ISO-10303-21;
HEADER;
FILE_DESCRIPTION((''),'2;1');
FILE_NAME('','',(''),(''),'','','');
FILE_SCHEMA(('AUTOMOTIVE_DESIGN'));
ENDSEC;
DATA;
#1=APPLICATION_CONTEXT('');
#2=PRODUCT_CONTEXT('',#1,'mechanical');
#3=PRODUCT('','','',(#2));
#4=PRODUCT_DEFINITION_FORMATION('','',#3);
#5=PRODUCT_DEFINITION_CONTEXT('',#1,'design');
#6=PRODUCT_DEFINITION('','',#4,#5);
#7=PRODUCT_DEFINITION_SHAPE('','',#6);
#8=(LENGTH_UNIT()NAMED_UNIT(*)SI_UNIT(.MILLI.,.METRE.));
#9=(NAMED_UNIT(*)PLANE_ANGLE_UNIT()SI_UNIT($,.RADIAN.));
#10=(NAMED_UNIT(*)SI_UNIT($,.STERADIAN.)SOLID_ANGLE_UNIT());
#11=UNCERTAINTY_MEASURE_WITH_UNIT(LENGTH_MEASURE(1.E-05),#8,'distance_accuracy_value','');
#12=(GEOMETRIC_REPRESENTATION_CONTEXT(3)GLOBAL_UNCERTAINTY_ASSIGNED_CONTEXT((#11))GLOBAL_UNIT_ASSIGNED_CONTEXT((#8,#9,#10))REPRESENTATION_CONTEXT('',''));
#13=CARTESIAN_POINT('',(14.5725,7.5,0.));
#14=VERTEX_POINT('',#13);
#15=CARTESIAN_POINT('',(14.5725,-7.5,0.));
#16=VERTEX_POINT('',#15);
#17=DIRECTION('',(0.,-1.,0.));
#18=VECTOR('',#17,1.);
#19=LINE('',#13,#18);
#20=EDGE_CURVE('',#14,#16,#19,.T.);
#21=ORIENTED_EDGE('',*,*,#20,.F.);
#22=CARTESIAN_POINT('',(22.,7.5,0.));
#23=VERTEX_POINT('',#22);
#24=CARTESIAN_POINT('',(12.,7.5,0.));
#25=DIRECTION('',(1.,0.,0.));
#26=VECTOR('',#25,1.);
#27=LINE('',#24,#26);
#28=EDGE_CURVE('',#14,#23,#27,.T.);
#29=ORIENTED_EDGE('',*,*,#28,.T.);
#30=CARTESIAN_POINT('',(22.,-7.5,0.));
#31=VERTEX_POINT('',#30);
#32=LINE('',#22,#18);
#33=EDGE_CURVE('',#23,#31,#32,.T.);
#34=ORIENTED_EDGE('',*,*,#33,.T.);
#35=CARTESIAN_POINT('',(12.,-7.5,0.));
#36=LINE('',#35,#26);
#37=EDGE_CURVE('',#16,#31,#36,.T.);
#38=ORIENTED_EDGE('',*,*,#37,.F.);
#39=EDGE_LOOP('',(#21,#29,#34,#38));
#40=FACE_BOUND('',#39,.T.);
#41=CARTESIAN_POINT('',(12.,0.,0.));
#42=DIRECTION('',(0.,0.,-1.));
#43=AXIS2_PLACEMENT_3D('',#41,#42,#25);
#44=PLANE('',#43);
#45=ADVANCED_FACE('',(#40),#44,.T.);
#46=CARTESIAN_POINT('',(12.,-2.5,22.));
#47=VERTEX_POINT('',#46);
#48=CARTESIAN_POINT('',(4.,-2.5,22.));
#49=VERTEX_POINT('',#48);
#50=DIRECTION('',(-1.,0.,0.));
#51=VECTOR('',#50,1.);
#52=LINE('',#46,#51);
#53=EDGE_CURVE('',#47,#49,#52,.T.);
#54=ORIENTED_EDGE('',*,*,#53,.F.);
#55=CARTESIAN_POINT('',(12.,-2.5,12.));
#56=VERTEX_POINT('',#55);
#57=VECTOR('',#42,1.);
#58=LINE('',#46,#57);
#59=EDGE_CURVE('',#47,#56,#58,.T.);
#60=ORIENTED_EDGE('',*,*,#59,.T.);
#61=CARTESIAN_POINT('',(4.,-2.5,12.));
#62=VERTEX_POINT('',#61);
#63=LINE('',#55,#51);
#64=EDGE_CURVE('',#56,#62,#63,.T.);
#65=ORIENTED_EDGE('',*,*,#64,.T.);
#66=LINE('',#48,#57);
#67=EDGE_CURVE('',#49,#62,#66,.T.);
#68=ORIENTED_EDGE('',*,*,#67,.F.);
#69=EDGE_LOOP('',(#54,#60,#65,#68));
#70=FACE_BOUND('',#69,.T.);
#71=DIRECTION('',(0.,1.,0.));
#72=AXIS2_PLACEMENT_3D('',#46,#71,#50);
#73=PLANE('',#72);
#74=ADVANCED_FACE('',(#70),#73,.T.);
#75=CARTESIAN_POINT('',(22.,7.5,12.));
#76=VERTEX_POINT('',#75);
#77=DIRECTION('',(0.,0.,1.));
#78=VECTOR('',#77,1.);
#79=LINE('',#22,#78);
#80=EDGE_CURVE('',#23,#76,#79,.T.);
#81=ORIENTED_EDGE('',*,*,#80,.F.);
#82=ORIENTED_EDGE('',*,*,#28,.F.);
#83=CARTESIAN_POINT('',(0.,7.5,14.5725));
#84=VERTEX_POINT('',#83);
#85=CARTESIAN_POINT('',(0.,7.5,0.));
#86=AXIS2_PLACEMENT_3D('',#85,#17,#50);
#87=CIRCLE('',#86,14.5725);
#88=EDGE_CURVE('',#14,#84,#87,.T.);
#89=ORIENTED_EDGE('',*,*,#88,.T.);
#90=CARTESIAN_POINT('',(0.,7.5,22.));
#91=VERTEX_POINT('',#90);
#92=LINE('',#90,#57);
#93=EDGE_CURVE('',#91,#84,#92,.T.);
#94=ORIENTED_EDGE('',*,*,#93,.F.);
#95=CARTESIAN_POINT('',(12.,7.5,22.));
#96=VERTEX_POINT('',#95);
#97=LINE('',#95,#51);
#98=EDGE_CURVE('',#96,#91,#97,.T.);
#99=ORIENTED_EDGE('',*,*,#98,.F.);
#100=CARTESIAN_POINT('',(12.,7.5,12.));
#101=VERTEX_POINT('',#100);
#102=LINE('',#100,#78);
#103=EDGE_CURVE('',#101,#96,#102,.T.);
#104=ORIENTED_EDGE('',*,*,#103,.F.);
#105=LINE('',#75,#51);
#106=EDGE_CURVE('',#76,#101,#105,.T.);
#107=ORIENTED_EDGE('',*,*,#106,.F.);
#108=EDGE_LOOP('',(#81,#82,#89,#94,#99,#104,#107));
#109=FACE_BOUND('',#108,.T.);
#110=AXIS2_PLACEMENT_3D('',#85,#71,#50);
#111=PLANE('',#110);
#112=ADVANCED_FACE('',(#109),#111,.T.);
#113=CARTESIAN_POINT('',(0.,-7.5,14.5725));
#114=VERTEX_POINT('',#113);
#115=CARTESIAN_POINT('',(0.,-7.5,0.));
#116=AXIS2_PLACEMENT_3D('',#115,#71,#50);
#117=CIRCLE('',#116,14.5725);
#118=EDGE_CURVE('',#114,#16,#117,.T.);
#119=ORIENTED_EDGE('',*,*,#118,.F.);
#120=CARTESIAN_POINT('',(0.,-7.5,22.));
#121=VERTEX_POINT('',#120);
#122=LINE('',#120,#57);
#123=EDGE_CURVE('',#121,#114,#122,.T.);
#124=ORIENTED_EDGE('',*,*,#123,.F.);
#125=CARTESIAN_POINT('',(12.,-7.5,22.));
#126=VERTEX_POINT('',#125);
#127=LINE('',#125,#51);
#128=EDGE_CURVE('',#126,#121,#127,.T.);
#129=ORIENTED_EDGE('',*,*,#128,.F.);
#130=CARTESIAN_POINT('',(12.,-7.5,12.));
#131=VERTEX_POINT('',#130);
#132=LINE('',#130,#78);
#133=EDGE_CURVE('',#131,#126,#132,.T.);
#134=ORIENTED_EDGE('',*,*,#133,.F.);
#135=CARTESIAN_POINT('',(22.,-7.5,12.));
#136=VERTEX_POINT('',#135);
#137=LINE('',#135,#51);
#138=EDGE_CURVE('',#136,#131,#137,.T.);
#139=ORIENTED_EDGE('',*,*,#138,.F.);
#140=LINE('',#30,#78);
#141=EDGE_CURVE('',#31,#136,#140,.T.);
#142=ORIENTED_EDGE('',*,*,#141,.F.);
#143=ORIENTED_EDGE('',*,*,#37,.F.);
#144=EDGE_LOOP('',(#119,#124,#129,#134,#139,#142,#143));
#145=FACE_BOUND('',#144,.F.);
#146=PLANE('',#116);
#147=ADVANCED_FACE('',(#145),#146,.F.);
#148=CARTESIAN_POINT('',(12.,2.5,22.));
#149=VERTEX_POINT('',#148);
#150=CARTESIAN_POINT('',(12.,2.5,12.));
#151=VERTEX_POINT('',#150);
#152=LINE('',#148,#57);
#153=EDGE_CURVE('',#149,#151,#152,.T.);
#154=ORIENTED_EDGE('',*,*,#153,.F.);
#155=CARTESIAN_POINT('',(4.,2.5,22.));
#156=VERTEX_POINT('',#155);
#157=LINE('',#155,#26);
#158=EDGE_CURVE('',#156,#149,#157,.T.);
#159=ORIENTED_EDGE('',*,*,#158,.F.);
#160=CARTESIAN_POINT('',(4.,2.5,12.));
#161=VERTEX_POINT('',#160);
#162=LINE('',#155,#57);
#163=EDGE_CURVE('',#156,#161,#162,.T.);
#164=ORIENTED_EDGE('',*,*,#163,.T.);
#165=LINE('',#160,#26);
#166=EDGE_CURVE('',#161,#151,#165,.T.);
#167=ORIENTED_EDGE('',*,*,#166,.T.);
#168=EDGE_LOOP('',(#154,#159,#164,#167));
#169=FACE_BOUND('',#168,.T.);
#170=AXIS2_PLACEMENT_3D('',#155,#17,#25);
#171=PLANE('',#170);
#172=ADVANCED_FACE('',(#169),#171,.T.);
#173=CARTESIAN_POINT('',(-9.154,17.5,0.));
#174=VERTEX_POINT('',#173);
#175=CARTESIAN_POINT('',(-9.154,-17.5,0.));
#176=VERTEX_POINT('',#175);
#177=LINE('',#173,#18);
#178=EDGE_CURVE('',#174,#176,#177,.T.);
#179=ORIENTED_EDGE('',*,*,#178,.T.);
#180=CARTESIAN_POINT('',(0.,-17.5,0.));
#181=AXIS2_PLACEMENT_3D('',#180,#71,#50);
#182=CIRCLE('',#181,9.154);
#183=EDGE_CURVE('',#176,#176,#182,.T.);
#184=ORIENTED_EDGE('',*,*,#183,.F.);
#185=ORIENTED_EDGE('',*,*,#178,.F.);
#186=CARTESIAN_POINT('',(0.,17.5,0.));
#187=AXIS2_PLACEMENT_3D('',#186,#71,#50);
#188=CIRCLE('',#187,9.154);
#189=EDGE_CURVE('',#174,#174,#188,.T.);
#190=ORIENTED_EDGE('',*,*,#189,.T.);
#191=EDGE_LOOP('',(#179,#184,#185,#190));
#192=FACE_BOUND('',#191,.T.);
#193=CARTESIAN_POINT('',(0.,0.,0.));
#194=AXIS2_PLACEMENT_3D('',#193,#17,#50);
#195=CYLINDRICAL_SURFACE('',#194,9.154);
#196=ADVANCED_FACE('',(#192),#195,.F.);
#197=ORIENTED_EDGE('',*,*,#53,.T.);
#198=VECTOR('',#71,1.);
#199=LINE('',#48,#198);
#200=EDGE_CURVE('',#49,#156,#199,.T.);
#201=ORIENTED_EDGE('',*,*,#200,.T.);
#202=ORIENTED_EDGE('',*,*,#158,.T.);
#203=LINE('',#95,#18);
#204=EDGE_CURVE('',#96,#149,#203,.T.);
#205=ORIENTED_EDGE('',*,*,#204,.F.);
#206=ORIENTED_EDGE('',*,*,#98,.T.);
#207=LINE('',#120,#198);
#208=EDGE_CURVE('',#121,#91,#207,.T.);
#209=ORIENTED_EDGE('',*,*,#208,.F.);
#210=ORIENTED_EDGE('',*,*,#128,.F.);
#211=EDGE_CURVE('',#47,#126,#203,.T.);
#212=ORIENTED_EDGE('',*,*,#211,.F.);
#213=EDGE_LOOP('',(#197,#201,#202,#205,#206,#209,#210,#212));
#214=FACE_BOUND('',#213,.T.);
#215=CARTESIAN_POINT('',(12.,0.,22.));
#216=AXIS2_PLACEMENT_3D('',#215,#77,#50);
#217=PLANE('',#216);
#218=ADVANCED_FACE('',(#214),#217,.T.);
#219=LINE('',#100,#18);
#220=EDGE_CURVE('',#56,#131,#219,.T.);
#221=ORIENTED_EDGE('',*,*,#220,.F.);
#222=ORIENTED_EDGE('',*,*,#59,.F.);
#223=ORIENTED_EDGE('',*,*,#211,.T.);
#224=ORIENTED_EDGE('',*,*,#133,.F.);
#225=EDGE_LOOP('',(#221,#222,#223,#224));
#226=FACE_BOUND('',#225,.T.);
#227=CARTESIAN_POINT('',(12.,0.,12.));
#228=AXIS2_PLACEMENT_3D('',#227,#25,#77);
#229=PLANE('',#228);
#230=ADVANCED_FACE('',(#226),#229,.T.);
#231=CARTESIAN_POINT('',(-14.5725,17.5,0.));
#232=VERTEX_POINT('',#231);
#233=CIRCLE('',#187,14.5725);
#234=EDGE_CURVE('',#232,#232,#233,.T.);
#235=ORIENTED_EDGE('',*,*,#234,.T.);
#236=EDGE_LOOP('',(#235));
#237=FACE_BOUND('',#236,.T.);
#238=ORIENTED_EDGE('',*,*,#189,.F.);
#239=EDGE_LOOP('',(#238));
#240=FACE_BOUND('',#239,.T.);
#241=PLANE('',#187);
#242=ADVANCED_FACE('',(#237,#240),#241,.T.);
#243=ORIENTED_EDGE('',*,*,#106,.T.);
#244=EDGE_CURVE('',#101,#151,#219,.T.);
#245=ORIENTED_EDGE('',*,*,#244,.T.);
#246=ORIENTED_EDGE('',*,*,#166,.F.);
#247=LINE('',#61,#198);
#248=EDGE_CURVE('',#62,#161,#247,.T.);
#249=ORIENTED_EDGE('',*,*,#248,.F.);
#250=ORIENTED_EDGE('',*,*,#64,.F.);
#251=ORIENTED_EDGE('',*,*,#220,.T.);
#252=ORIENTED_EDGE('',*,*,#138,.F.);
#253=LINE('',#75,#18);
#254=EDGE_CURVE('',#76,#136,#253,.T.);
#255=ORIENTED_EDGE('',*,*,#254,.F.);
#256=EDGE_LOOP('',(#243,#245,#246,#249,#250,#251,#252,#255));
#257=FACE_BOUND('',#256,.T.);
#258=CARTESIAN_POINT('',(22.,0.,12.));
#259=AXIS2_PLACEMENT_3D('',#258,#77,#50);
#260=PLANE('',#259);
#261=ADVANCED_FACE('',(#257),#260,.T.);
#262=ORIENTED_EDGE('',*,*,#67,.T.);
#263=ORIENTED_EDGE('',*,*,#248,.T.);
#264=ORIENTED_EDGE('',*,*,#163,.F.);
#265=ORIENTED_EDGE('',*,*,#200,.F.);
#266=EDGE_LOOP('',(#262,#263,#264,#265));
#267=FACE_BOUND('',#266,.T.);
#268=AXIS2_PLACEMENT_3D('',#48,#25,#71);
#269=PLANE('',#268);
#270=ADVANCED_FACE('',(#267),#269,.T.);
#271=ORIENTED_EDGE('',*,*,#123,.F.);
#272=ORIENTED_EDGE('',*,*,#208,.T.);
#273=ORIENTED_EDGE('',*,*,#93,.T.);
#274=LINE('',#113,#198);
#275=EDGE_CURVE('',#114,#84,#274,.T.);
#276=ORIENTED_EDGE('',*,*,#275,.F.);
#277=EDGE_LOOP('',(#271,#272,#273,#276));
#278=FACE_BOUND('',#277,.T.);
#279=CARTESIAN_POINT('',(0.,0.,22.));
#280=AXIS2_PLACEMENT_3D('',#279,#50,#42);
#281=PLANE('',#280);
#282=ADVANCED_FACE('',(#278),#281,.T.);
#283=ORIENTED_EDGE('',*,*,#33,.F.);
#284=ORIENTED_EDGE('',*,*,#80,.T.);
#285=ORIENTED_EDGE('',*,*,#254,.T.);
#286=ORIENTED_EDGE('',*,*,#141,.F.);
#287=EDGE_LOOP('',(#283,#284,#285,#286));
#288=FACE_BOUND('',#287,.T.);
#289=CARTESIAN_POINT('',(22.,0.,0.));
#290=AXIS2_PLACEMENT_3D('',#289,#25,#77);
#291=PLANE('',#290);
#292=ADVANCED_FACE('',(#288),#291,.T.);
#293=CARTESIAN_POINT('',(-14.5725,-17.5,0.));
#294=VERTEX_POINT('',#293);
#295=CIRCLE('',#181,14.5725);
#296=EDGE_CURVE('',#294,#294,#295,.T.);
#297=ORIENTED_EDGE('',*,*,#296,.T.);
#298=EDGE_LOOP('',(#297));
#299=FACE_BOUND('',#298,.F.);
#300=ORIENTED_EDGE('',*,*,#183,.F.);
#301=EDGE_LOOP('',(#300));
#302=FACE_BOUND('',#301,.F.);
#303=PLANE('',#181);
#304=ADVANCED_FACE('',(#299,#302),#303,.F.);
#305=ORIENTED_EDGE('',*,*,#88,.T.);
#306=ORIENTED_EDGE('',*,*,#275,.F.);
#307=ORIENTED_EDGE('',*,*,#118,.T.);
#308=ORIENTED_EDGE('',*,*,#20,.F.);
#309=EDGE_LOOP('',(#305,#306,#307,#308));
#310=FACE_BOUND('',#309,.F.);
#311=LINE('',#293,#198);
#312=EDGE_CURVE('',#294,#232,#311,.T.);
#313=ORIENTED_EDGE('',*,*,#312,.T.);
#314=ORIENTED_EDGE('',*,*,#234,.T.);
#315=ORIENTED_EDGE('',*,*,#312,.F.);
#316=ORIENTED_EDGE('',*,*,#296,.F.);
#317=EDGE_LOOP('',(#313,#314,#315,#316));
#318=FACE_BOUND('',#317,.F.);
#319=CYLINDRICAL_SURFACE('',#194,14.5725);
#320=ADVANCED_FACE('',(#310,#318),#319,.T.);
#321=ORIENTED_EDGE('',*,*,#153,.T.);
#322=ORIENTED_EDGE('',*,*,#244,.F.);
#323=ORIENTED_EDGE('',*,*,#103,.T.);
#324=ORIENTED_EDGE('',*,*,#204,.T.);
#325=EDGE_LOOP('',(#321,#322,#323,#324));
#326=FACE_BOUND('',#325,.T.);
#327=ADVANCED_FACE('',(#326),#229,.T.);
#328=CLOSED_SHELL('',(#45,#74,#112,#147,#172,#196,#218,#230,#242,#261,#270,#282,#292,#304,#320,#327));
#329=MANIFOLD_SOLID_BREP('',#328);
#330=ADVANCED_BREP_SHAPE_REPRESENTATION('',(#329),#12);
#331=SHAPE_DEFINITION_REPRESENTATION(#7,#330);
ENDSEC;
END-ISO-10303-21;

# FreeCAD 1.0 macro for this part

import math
import FreeCAD as App
import Part
import Sketcher

V = App.Vector


def add_polygon(sketch, points):
    """Adds a closed chain of lines whose ends are joined by coincident constraints."""
    first, n = sketch.GeometryCount, len(points)
    for a, b in zip(points, points[1:] + points[:1]):
        sketch.addGeometry(Part.LineSegment(App.Vector(*a, 0), App.Vector(*b, 0)), False)
    for i in range(n):
        sketch.addConstraint(Sketcher.Constraint("Coincident", first + i, 2, first + (i + 1) % n, 1))

doc = App.newDocument("Part")
body = doc.addObject("PartDesign::Body", "Body")

# Sketch on XZ plane
sketch1 = body.newObject("Sketcher::SketchObject", "Sketch")
sketch1.AttachmentSupport = (doc.getObject("XZ_Plane"), [""])
sketch1.MapMode = "FlatFace"
sketch1.addGeometry(Part.Circle(V(0, 0, 0), V(0, 0, 1), 15), False)
sketch1.addGeometry(Part.Circle(V(0, 0, 0), V(0, 0, 1), 9), False)
sketch1.addConstraint(Sketcher.Constraint("Coincident", 0, 3, -1, 1))
sketch1.addConstraint(Sketcher.Constraint("Coincident", 1, 3, -1, 1))
sketch1.addConstraint(Sketcher.Constraint("Diameter", 0, 29.145))
sketch1.addConstraint(Sketcher.Constraint("Diameter", 1, 18.308))
pad1 = body.newObject("PartDesign::Pad", "Pad")
pad1.Profile = sketch1
pad1.Length = 35
pad1.Midplane = True

# Sketch on XZ plane
sketch2 = body.newObject("Sketcher::SketchObject", "Sketch001")
sketch2.AttachmentSupport = (doc.getObject("XZ_Plane"), [""])
sketch2.MapMode = "FlatFace"
sketch2.addGeometry(Part.LineSegment(V(22, 0, 0), V(12, 0, 0)), False)
sketch2.addGeometry(Part.ArcOfCircle(Part.Circle(V(0, 0, 0), V(0, 0, 1), 12), math.radians(0), math.radians(90)), False)
sketch2.addGeometry(Part.LineSegment(V(0, 12, 0), V(0, 22, 0)), False)
sketch2.addGeometry(Part.LineSegment(V(0, 22, 0), V(12, 22, 0)), False)
sketch2.addGeometry(Part.LineSegment(V(12, 22, 0), V(12, 12, 0)), False)
sketch2.addGeometry(Part.LineSegment(V(12, 12, 0), V(22, 12, 0)), False)
sketch2.addGeometry(Part.LineSegment(V(22, 12, 0), V(22, 0, 0)), False)
sketch2.addConstraint(Sketcher.Constraint("Coincident", 0, 2, 1, 1))
sketch2.addConstraint(Sketcher.Constraint("Coincident", 1, 2, 2, 1))
sketch2.addConstraint(Sketcher.Constraint("Coincident", 2, 2, 3, 1))
sketch2.addConstraint(Sketcher.Constraint("Coincident", 3, 2, 4, 1))
sketch2.addConstraint(Sketcher.Constraint("Coincident", 4, 2, 5, 1))
sketch2.addConstraint(Sketcher.Constraint("Coincident", 5, 2, 6, 1))
sketch2.addConstraint(Sketcher.Constraint("Coincident", 6, 2, 0, 1))
sketch2.addConstraint(Sketcher.Constraint("Horizontal", 0))
sketch2.addConstraint(Sketcher.Constraint("Vertical", 2))
sketch2.addConstraint(Sketcher.Constraint("Horizontal", 3))
sketch2.addConstraint(Sketcher.Constraint("Vertical", 4))
sketch2.addConstraint(Sketcher.Constraint("Horizontal", 5))
sketch2.addConstraint(Sketcher.Constraint("Vertical", 6))
sketch2.addConstraint(Sketcher.Constraint("Coincident", 1, 3, -1, 1))
sketch2.addConstraint(Sketcher.Constraint("PointOnObject", 0, 2, -1))
sketch2.addConstraint(Sketcher.Constraint("PointOnObject", 1, 2, -2))
sketch2.addConstraint(Sketcher.Constraint("Horizontal", 1, 2, 4, 2))
sketch2.addConstraint(Sketcher.Constraint("Vertical", 0, 2, 3, 2))
sketch2.addConstraint(Sketcher.Constraint("Equal", 5, 2))
sketch2.addConstraint(Sketcher.Constraint("Radius", 1, 12.0))
sketch2.addConstraint(Sketcher.Constraint("DistanceX", 0, 2, 0, 1, 10.0))
pad2 = body.newObject("PartDesign::Pad", "Pad001")
pad2.Profile = sketch2
pad2.Length = 15
pad2.Midplane = True

# Sketch on XY plane
sketch3 = body.newObject("Sketcher::SketchObject", "Sketch002")
sketch3.AttachmentSupport = (doc.getObject("XY_Plane"), [""])
sketch3.MapMode = "FlatFace"
sketch3.AttachmentOffset = App.Placement(V(0, 0, 22), App.Rotation())
add_polygon(sketch3, [(12, 2), (4, 2), (4, -2), (12, -2)])  # lines 0-3
sketch3.addConstraint(Sketcher.Constraint("Horizontal", 0))
sketch3.addConstraint(Sketcher.Constraint("Vertical", 1))
sketch3.addConstraint(Sketcher.Constraint("Horizontal", 2))
sketch3.addConstraint(Sketcher.Constraint("Vertical", 3))
sketch3.addConstraint(Sketcher.Constraint("DistanceX", 0, 2, 0, 1, 8.0))
sketch3.addConstraint(Sketcher.Constraint("DistanceY", 1, 2, 1, 1, 5.0))
sketch3.addConstraint(Sketcher.Constraint("DistanceX", -1, 1, 0, 2, 4.0))
sketch3.addConstraint(Sketcher.Constraint("DistanceY", -1, 1, 0, 2, 2.5))
pocket1 = body.newObject("PartDesign::Pocket", "Pocket")
pocket1.Profile = sketch3
pocket1.Length = 10

doc.recompute()
